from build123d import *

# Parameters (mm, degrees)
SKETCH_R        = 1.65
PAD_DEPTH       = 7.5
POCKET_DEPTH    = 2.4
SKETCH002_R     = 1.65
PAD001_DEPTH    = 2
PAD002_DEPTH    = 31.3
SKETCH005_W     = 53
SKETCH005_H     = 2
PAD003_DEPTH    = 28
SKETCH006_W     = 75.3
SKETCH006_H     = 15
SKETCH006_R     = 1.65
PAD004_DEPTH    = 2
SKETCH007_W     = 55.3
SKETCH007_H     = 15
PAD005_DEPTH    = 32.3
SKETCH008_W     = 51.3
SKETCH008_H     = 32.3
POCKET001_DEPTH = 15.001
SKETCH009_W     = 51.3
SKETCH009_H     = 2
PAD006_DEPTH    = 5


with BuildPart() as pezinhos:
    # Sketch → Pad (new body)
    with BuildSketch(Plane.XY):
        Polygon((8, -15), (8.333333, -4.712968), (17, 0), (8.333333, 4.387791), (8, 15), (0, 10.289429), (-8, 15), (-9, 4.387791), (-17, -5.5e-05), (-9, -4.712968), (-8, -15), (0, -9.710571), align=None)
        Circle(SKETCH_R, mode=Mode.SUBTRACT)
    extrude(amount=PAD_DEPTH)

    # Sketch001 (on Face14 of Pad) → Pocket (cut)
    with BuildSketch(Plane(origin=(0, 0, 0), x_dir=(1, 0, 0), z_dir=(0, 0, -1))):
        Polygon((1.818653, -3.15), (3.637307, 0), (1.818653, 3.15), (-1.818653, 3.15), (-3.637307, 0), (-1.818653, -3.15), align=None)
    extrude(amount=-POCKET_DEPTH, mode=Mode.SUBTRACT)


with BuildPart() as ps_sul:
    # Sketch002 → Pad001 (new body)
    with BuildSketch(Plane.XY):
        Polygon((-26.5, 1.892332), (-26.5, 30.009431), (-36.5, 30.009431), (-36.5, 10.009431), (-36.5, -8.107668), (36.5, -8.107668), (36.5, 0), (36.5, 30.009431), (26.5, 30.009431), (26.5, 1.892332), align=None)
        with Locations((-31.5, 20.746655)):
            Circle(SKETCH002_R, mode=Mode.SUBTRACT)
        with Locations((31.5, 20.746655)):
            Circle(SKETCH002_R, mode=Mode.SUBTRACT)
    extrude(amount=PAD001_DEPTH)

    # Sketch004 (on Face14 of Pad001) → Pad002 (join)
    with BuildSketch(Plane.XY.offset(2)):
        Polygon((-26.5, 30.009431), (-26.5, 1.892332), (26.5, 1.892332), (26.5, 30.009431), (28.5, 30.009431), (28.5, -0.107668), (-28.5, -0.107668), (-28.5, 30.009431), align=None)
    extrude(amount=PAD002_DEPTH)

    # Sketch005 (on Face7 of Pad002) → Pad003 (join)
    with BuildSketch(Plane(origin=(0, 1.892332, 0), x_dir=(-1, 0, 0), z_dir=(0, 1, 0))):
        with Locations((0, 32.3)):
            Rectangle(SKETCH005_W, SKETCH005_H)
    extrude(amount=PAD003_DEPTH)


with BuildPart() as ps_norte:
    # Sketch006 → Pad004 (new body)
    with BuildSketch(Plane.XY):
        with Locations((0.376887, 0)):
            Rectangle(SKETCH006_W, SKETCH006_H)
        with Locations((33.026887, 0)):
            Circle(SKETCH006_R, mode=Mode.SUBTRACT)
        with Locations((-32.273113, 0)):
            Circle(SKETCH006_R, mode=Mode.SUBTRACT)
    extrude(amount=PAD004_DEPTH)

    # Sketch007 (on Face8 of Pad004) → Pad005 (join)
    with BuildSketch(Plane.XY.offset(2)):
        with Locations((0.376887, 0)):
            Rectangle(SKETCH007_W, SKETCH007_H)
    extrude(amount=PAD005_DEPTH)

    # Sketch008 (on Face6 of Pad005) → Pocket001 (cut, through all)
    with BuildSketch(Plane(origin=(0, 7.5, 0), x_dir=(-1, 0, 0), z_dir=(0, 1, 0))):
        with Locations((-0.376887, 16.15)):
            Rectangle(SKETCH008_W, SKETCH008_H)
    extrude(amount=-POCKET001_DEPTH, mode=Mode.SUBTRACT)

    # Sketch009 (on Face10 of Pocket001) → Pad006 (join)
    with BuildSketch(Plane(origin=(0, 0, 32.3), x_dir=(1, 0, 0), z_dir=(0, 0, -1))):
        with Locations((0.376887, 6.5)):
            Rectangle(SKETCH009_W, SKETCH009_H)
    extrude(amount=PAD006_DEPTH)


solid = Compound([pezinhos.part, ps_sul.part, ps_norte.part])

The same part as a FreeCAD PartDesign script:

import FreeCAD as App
import Part
import Sketcher
from FreeCAD import Vector
Q = App.Units.Quantity

doc = App.newDocument("Part")
body = doc.addObject("PartDesign::Body", "Body")

sketch1 = body.newObject("Sketcher::SketchObject", "Sketch")
sketch1.AttachmentSupport = (doc.getObject("XY_Plane"), [""])
sketch1.MapMode = "FlatFace"
sketch1.addGeometry(Part.LineSegment(Vector(8, -15, 0), Vector(8.3, -4.7, 0)), False)
sketch1.addGeometry(Part.LineSegment(Vector(8.3, -4.7, 0), Vector(17, 0, 0)), False)
sketch1.addGeometry(Part.LineSegment(Vector(17, 0, 0), Vector(8.3, 4.4, 0)), False)
sketch1.addGeometry(Part.LineSegment(Vector(8.3, 4.4, 0), Vector(8, 15, 0)), False)
sketch1.addGeometry(Part.LineSegment(Vector(8, 15, 0), Vector(0, 10.3, 0)), False)
sketch1.addGeometry(Part.LineSegment(Vector(0, 10.3, 0), Vector(-8, 15, 0)), False)
sketch1.addGeometry(Part.LineSegment(Vector(-8, 15, 0), Vector(-9, 4.4, 0)), False)
sketch1.addGeometry(Part.LineSegment(Vector(-9, 4.4, 0), Vector(-17, 0, 0)), False)
sketch1.addGeometry(Part.LineSegment(Vector(-17, 0, 0), Vector(-9, -4.7, 0)), False)
sketch1.addGeometry(Part.LineSegment(Vector(-9, -4.7, 0), Vector(-8, -15, 0)), False)
sketch1.addGeometry(Part.LineSegment(Vector(-8, -15, 0), Vector(0, -9.7, 0)), False)
sketch1.addGeometry(Part.LineSegment(Vector(0, -9.7, 0), Vector(8, -15, 0)), False)
sketch1.addGeometry(Part.Circle(Vector(0, 0, 0), Vector(0, 0, 1), 1.6), False)
sketch1.addConstraint(Sketcher.Constraint("Coincident", 0, 2, 1, 1))
sketch1.addConstraint(Sketcher.Constraint("Coincident", 1, 2, 2, 1))
sketch1.addConstraint(Sketcher.Constraint("Coincident", 2, 2, 3, 1))
sketch1.addConstraint(Sketcher.Constraint("Coincident", 3, 2, 4, 1))
sketch1.addConstraint(Sketcher.Constraint("Coincident", 4, 2, 5, 1))
sketch1.addConstraint(Sketcher.Constraint("Coincident", 5, 2, 6, 1))
sketch1.addConstraint(Sketcher.Constraint("Coincident", 6, 2, 7, 1))
sketch1.addConstraint(Sketcher.Constraint("Coincident", 7, 2, 8, 1))
sketch1.addConstraint(Sketcher.Constraint("Coincident", 8, 2, 9, 1))
sketch1.addConstraint(Sketcher.Constraint("Coincident", 9, 2, 10, 1))
sketch1.addConstraint(Sketcher.Constraint("Coincident", 10, 2, 11, 1))
sketch1.addConstraint(Sketcher.Constraint("Coincident", 11, 2, 0, 1))
sketch1.addConstraint(Sketcher.Constraint("Coincident", 12, 3, -1, 1))
sketch1.addConstraint(Sketcher.Constraint("Symmetric", 3, 2, 9, 2, -1, 1))
sketch1.addConstraint(Sketcher.Constraint("Symmetric", 5, 2, 11, 2, -1, 1))
sketch1.addConstraint(Sketcher.Constraint("Symmetric", 3, 2, 5, 2, -2))
sketch1.addConstraint(Sketcher.Constraint("PointOnObject", 1, 2, -1))
sketch1.addConstraint(Sketcher.Constraint("PointOnObject", 4, 2, -2))
sketch1.addConstraint(Sketcher.Constraint("PointOnObject", 10, 2, -2))
sketch1.addConstraint(Sketcher.Constraint("Horizontal", 2, 2, 6, 2))
sketch1.addConstraint(Sketcher.Constraint("Horizontal", 0, 2, 8, 2))
sketch1.addConstraint(Sketcher.Constraint("Vertical", 0, 2, 2, 2))
sketch1.addConstraint(Sketcher.Constraint("Vertical", 6, 2, 8, 2))
sketch1.addConstraint(Sketcher.Constraint("Diameter", 12, Q("3.3 mm")))
sketch1.addConstraint(Sketcher.Constraint("DistanceX", -1, 1, 1, 2, Q("17 mm")))
sketch1.addConstraint(Sketcher.Constraint("DistanceX", -1, 1, 3, 2, Q("8 mm")))
sketch1.addConstraint(Sketcher.Constraint("DistanceY", -1, 1, 3, 2, Q("15 mm")))
sketch1.addConstraint(Sketcher.Constraint("DistanceX", 6, 2, -1, 1, Q("9 mm")))
sketch1.addConstraint(Sketcher.Constraint("DistanceX", 7, 2, -1, 1, Q("17 mm")))
sketch1.addConstraint(Sketcher.Constraint("Distance", 0, Q("10.292431 mm")))
sketch1.addConstraint(Sketcher.Constraint("Distance", 1, Q("9.865251 mm")))
sketch1.addConstraint(Sketcher.Constraint("Distance", 4, Q("9.283829 mm")))
sketch1.addConstraint(Sketcher.Constraint("Distance", 6, Q("10.65922 mm")))
sketch1.addConstraint(Sketcher.Constraint("Distance", 7, Q("9.124319 mm")))
sketch1.addConstraint(Sketcher.Constraint("Distance", 10, Q("9.590519 mm")))
pad1 = body.newObject("PartDesign::Pad", "Pad")
pad1.Profile = sketch1
pad1.Length = 7.5

sketch2 = body.newObject("Sketcher::SketchObject", "Sketch001")
sketch2.AttachmentSupport = (doc.getObject("XY_Plane"), [""])
sketch2.MapMode = "FlatFace"
sketch2.addGeometry(Part.LineSegment(Vector(1.8, 3.1, 0), Vector(3.6, 0, 0)), False)
sketch2.addGeometry(Part.LineSegment(Vector(3.6, 0, 0), Vector(1.8, -3.1, 0)), False)
sketch2.addGeometry(Part.LineSegment(Vector(1.8, -3.1, 0), Vector(-1.8, -3.1, 0)), False)
sketch2.addGeometry(Part.LineSegment(Vector(-1.8, -3.1, 0), Vector(-3.6, 0, 0)), False)
sketch2.addGeometry(Part.LineSegment(Vector(-3.6, 0, 0), Vector(-1.8, 3.1, 0)), False)
sketch2.addGeometry(Part.LineSegment(Vector(-1.8, 3.1, 0), Vector(1.8, 3.1, 0)), False)
sketch2.addConstraint(Sketcher.Constraint("Coincident", 0, 2, 1, 1))
sketch2.addConstraint(Sketcher.Constraint("Coincident", 1, 2, 2, 1))
sketch2.addConstraint(Sketcher.Constraint("Coincident", 2, 2, 3, 1))
sketch2.addConstraint(Sketcher.Constraint("Coincident", 3, 2, 4, 1))
sketch2.addConstraint(Sketcher.Constraint("Coincident", 4, 2, 5, 1))
sketch2.addConstraint(Sketcher.Constraint("Coincident", 5, 2, 0, 1))
sketch2.addConstraint(Sketcher.Constraint("Horizontal", 2))
sketch2.addConstraint(Sketcher.Constraint("Horizontal", 5))
sketch2.addConstraint(Sketcher.Constraint("Symmetric", 0, 2, 3, 2, -1, 1))
sketch2.addConstraint(Sketcher.Constraint("Symmetric", 1, 2, 4, 2, -1, 1))
sketch2.addConstraint(Sketcher.Constraint("PointOnObject", 0, 2, -1))
sketch2.addConstraint(Sketcher.Constraint("Parallel", 0, 3))
sketch2.addConstraint(Sketcher.Constraint("Vertical", 2, 2, 4, 2))
sketch2.addConstraint(Sketcher.Constraint("Angle", 0, Q("-59.999991 deg")))
sketch2.addConstraint(Sketcher.Constraint("DistanceY", 2, 2, 4, 2, Q("6.3 mm")))
sketch2.addConstraint(Sketcher.Constraint("DistanceX", 2, 2, 2, 1, Q("3.637306 mm")))
pocket1 = body.newObject("PartDesign::Pocket", "Pocket")
pocket1.Profile = sketch2
pocket1.Length = 2.4
pocket1.Reversed = True
body2 = doc.addObject("PartDesign::Body", "Body001")

sketch3 = body2.newObject("Sketcher::SketchObject", "Sketch002")
sketch3.AttachmentSupport = (doc.getObject("XY_Plane001"), [""])
sketch3.MapMode = "FlatFace"
sketch3.addGeometry(Part.LineSegment(Vector(-26.5, 1.9, 0), Vector(-26.5, 30, 0)), False)
sketch3.addGeometry(Part.LineSegment(Vector(-26.5, 30, 0), Vector(-36.5, 30, 0)), False)
sketch3.addGeometry(Part.LineSegment(Vector(-36.5, 30, 0), Vector(-36.5, -8.1, 0)), False)
sketch3.addGeometry(Part.LineSegment(Vector(-36.5, -8.1, 0), Vector(36.5, -8.1, 0)), False)
sketch3.addGeometry(Part.LineSegment(Vector(36.5, -8.1, 0), Vector(36.5, 30, 0)), False)
sketch3.addGeometry(Part.LineSegment(Vector(36.5, 30, 0), Vector(26.5, 30, 0)), False)
sketch3.addGeometry(Part.LineSegment(Vector(26.5, 30, 0), Vector(26.5, 1.9, 0)), False)
sketch3.addGeometry(Part.LineSegment(Vector(26.5, 1.9, 0), Vector(-26.5, 1.9, 0)), False)
sketch3.addGeometry(Part.Circle(Vector(-31.5, 20.7, 0), Vector(0, 0, 1), 1.6), False)
sketch3.addGeometry(Part.Circle(Vector(31.5, 20.7, 0), Vector(0, 0, 1), 1.6), False)
sketch3.addConstraint(Sketcher.Constraint("Coincident", 0, 2, 1, 1))
sketch3.addConstraint(Sketcher.Constraint("Coincident", 1, 2, 2, 1))
sketch3.addConstraint(Sketcher.Constraint("Coincident", 2, 2, 3, 1))
sketch3.addConstraint(Sketcher.Constraint("Coincident", 3, 2, 4, 1))
sketch3.addConstraint(Sketcher.Constraint("Coincident", 4, 2, 5, 1))
sketch3.addConstraint(Sketcher.Constraint("Coincident", 5, 2, 6, 1))
sketch3.addConstraint(Sketcher.Constraint("Coincident", 6, 2, 7, 1))
sketch3.addConstraint(Sketcher.Constraint("Coincident", 7, 2, 0, 1))
sketch3.addConstraint(Sketcher.Constraint("Vertical", 0))
sketch3.addConstraint(Sketcher.Constraint("Horizontal", 1))
sketch3.addConstraint(Sketcher.Constraint("Vertical", 2))
sketch3.addConstraint(Sketcher.Constraint("Horizontal", 3))
sketch3.addConstraint(Sketcher.Constraint("Vertical", 4))
sketch3.addConstraint(Sketcher.Constraint("Horizontal", 5))
sketch3.addConstraint(Sketcher.Constraint("Vertical", 6))
sketch3.addConstraint(Sketcher.Constraint("Horizontal", 7))
sketch3.addConstraint(Sketcher.Constraint("Equal", 8, 9))
sketch3.addConstraint(Sketcher.Constraint("Symmetric", 8, 3, 9, 3, -2))
sketch3.addConstraint(Sketcher.Constraint("Symmetric", 1, 2, 4, 2, -2))
sketch3.addConstraint(Sketcher.Constraint("Equal", 1, 5))
sketch3.addConstraint(Sketcher.Constraint("Diameter", 8, Q("3.3 mm")))
sketch3.addConstraint(Sketcher.Constraint("DistanceX", 1, 2, 1, 1, Q("10 mm")))
sketch3.addConstraint(Sketcher.Constraint("DistanceX", 3, 1, 3, 2, Q("73 mm")))
sketch3.addConstraint(Sketcher.Constraint("DistanceX", 8, 3, 9, 3, Q("63 mm")))
sketch3.addConstraint(Sketcher.Constraint("DistanceY", 3, 2, 6, 2, Q("10 mm")))
sketch3.addConstraint(Sketcher.Constraint("DistanceY", 0, 1, 0, 2, Q("28.117099 mm")))
sketch3.addConstraint(Sketcher.Constraint("DistanceY", -1, 1, 0, 2, Q("30.009431 mm")))
sketch3.addConstraint(Sketcher.Constraint("DistanceY", -1, 1, 8, 3, Q("20.746655 mm")))
pad2 = body2.newObject("PartDesign::Pad", "Pad001")
pad2.Profile = sketch3
pad2.Length = 2

sketch4 = body2.newObject("Sketcher::SketchObject", "Sketch003")
sketch4.AttachmentSupport = (doc.getObject("XY_Plane001"), [""])
sketch4.MapMode = "FlatFace"
sketch4.AttachmentOffset = App.Placement(Vector(0, 0, 2), App.Rotation())
sketch4.addGeometry(Part.LineSegment(Vector(-26.5, 1.9, 0), Vector(-26.5, 30, 0)), False)
sketch4.addGeometry(Part.LineSegment(Vector(-26.5, 30, 0), Vector(-28.5, 30, 0)), False)
sketch4.addGeometry(Part.LineSegment(Vector(-28.5, 30, 0), Vector(-28.5, -0.1, 0)), False)
sketch4.addGeometry(Part.LineSegment(Vector(-28.5, -0.1, 0), Vector(28.5, -0.1, 0)), False)
sketch4.addGeometry(Part.LineSegment(Vector(28.5, -0.1, 0), Vector(28.5, 30, 0)), False)
sketch4.addGeometry(Part.LineSegment(Vector(28.5, 30, 0), Vector(26.5, 30, 0)), False)
sketch4.addGeometry(Part.LineSegment(Vector(26.5, 30, 0), Vector(26.5, 1.9, 0)), False)
sketch4.addGeometry(Part.LineSegment(Vector(26.5, 1.9, 0), Vector(-26.5, 1.9, 0)), False)
sketch4.addConstraint(Sketcher.Constraint("Coincident", 0, 2, 1, 1))
sketch4.addConstraint(Sketcher.Constraint("Coincident", 1, 2, 2, 1))
sketch4.addConstraint(Sketcher.Constraint("Coincident", 2, 2, 3, 1))
sketch4.addConstraint(Sketcher.Constraint("Coincident", 3, 2, 4, 1))
sketch4.addConstraint(Sketcher.Constraint("Coincident", 4, 2, 5, 1))
sketch4.addConstraint(Sketcher.Constraint("Coincident", 5, 2, 6, 1))
sketch4.addConstraint(Sketcher.Constraint("Coincident", 6, 2, 7, 1))
sketch4.addConstraint(Sketcher.Constraint("Coincident", 7, 2, 0, 1))
sketch4.addConstraint(Sketcher.Constraint("Vertical", 0))
sketch4.addConstraint(Sketcher.Constraint("Horizontal", 1))
sketch4.addConstraint(Sketcher.Constraint("Vertical", 2))
sketch4.addConstraint(Sketcher.Constraint("Horizontal", 3))
sketch4.addConstraint(Sketcher.Constraint("Vertical", 4))
sketch4.addConstraint(Sketcher.Constraint("Horizontal", 5))
sketch4.addConstraint(Sketcher.Constraint("Vertical", 6))
sketch4.addConstraint(Sketcher.Constraint("Horizontal", 7))
sketch4.addConstraint(Sketcher.Constraint("Symmetric", 1, 2, 4, 2, -2))
sketch4.addConstraint(Sketcher.Constraint("Equal", 1, 5))
sketch4.addConstraint(Sketcher.Constraint("DistanceX", 1, 2, 1, 1, Q("2 mm")))
sketch4.addConstraint(Sketcher.Constraint("DistanceX", 3, 1, 3, 2, Q("57 mm")))
sketch4.addConstraint(Sketcher.Constraint("DistanceY", 3, 2, 6, 2, Q("2 mm")))
sketch4.addConstraint(Sketcher.Constraint("DistanceY", 0, 1, 0, 2, Q("28.117099 mm")))
sketch4.addConstraint(Sketcher.Constraint("DistanceY", -1, 1, 0, 2, Q("30.009431 mm")))
pad3 = body2.newObject("PartDesign::Pad", "Pad002")
pad3.Profile = sketch4
pad3.Length = 31.3

sketch5 = body2.newObject("Sketcher::SketchObject", "Sketch004")
sketch5.AttachmentSupport = (doc.getObject("XZ_Plane001"), [""])
sketch5.MapMode = "FlatFace"
sketch5.AttachmentOffset = App.Placement(Vector(0, 0, -1.892332), App.Rotation())
sketch5.addGeometry(Part.LineSegment(Vector(26.5, 33.3, 0), Vector(26.5, 31.3, 0)), False)
sketch5.addGeometry(Part.LineSegment(Vector(26.5, 31.3, 0), Vector(-26.5, 31.3, 0)), False)
sketch5.addGeometry(Part.LineSegment(Vector(-26.5, 31.3, 0), Vector(-26.5, 33.3, 0)), False)
sketch5.addGeometry(Part.LineSegment(Vector(-26.5, 33.3, 0), Vector(26.5, 33.3, 0)), False)
sketch5.addConstraint(Sketcher.Constraint("Coincident", 0, 2, 1, 1))
sketch5.addConstraint(Sketcher.Constraint("Coincident", 1, 2, 2, 1))
sketch5.addConstraint(Sketcher.Constraint("Coincident", 2, 2, 3, 1))
sketch5.addConstraint(Sketcher.Constraint("Coincident", 3, 2, 0, 1))
sketch5.addConstraint(Sketcher.Constraint("Vertical", 0))
sketch5.addConstraint(Sketcher.Constraint("Horizontal", 1))
sketch5.addConstraint(Sketcher.Constraint("Vertical", 2))
sketch5.addConstraint(Sketcher.Constraint("Horizontal", 3))
sketch5.addConstraint(Sketcher.Constraint("DistanceX", 1, 2, 1, 1, Q("53 mm")))
sketch5.addConstraint(Sketcher.Constraint("DistanceY", 0, 2, 0, 1, Q("2 mm")))
sketch5.addConstraint(Sketcher.Constraint("DistanceX", -1, 1, 0, 2, Q("26.5 mm")))
sketch5.addConstraint(Sketcher.Constraint("DistanceY", -1, 1, 0, 2, Q("31.3 mm")))
pad4 = body2.newObject("PartDesign::Pad", "Pad003")
pad4.Profile = sketch5
pad4.Length = 28
pad4.Reversed = True
body3 = doc.addObject("PartDesign::Body", "Body002")

sketch6 = body3.newObject("Sketcher::SketchObject", "Sketch005")
sketch6.AttachmentSupport = (doc.getObject("XY_Plane002"), [""])
sketch6.MapMode = "FlatFace"
sketch6.addGeometry(Part.LineSegment(Vector(-37.3, 7.5, 0), Vector(-37.3, -7.5, 0)), False)
sketch6.addGeometry(Part.LineSegment(Vector(-37.3, -7.5, 0), Vector(38, -7.5, 0)), False)
sketch6.addGeometry(Part.LineSegment(Vector(38, -7.5, 0), Vector(38, 7.5, 0)), False)
sketch6.addGeometry(Part.LineSegment(Vector(38, 7.5, 0), Vector(-37.3, 7.5, 0)), False)
sketch6.addGeometry(Part.Circle(Vector(-32.3, 0, 0), Vector(0, 0, 1), 1.6), False)
sketch6.addGeometry(Part.Circle(Vector(33, 0, 0), Vector(0, 0, 1), 1.6), False)
sketch6.addConstraint(Sketcher.Constraint("Coincident", 0, 2, 1, 1))
sketch6.addConstraint(Sketcher.Constraint("Coincident", 1, 2, 2, 1))
sketch6.addConstraint(Sketcher.Constraint("Coincident", 2, 2, 3, 1))
sketch6.addConstraint(Sketcher.Constraint("Coincident", 3, 2, 0, 1))
sketch6.addConstraint(Sketcher.Constraint("Vertical", 0))
sketch6.addConstraint(Sketcher.Constraint("Horizontal", 1))
sketch6.addConstraint(Sketcher.Constraint("Vertical", 2))
sketch6.addConstraint(Sketcher.Constraint("Horizontal", 3))
sketch6.addConstraint(Sketcher.Constraint("Equal", 4, 5))
sketch6.addConstraint(Sketcher.Constraint("PointOnObject", 4, 3, -1))
sketch6.addConstraint(Sketcher.Constraint("PointOnObject", 5, 3, -1))
sketch6.addConstraint(Sketcher.Constraint("Diameter", 4, Q("3.3 mm")))
sketch6.addConstraint(Sketcher.Constraint("DistanceY", 0, 2, 0, 1, Q("15 mm")))
sketch6.addConstraint(Sketcher.Constraint("DistanceX", 1, 1, 1, 2, Q("75.3 mm")))
sketch6.addConstraint(Sketcher.Constraint("DistanceX", 0, 2, 4, 3, Q("5 mm")))
sketch6.addConstraint(Sketcher.Constraint("DistanceX", 5, 3, 1, 2, Q("5 mm")))
sketch6.addConstraint(Sketcher.Constraint("DistanceY", 0, 2, -1, 1, Q("7.5 mm")))
sketch6.addConstraint(Sketcher.Constraint("DistanceX", 4, 3, -1, 1, Q("32.273113 mm")))
pad5 = body3.newObject("PartDesign::Pad", "Pad004")
pad5.Profile = sketch6
pad5.Length = 2

sketch7 = body3.newObject("Sketcher::SketchObject", "Sketch006")
sketch7.AttachmentSupport = (doc.getObject("XY_Plane002"), [""])
sketch7.MapMode = "FlatFace"
sketch7.AttachmentOffset = App.Placement(Vector(0, 0, 2), App.Rotation())
sketch7.addGeometry(Part.LineSegment(Vector(-27, 8, 0), Vector(-27, -8, 0)), False)
sketch7.addGeometry(Part.LineSegment(Vector(-27, -8, 0), Vector(28, -8, 0)), False)
sketch7.addGeometry(Part.LineSegment(Vector(28, -8, 0), Vector(28, 8, 0)), False)
sketch7.addGeometry(Part.LineSegment(Vector(28, 8, 0), Vector(-27, 8, 0)), False)
sketch7.addConstraint(Sketcher.Constraint("Coincident", 0, 2, 1, 1))
sketch7.addConstraint(Sketcher.Constraint("Coincident", 1, 2, 2, 1))
sketch7.addConstraint(Sketcher.Constraint("Coincident", 2, 2, 3, 1))
sketch7.addConstraint(Sketcher.Constraint("Coincident", 3, 2, 0, 1))
sketch7.addConstraint(Sketcher.Constraint("Vertical", 0))
sketch7.addConstraint(Sketcher.Constraint("Horizontal", 1))
sketch7.addConstraint(Sketcher.Constraint("Vertical", 2))
sketch7.addConstraint(Sketcher.Constraint("Horizontal", 3))
sketch7.addConstraint(Sketcher.Constraint("DistanceY", 0, 2, 0, 1, Q("15 mm")))
sketch7.addConstraint(Sketcher.Constraint("DistanceX", 1, 1, 1, 2, Q("55.3 mm")))
sketch7.addConstraint(Sketcher.Constraint("DistanceY", 0, 2, -1, 1, Q("7.5 mm")))
sketch7.addConstraint(Sketcher.Constraint("DistanceX", 0, 2, -1, 1, Q("27.273113 mm")))
pad6 = body3.newObject("PartDesign::Pad", "Pad005")
pad6.Profile = sketch7
pad6.Length = 32.3

sketch8 = body3.newObject("Sketcher::SketchObject", "Sketch007")
sketch8.AttachmentSupport = (doc.getObject("XZ_Plane002"), [""])
sketch8.MapMode = "FlatFace"
sketch8.AttachmentOffset = App.Placement(Vector(0, 0, -7.5), App.Rotation())
sketch8.addGeometry(Part.LineSegment(Vector(26, 32, 0), Vector(26, 0, 0)), False)
sketch8.addGeometry(Part.LineSegment(Vector(26, 0, 0), Vector(-25, 0, 0)), False)
sketch8.addGeometry(Part.LineSegment(Vector(-25, 0, 0), Vector(-25, 32, 0)), False)
sketch8.addGeometry(Part.LineSegment(Vector(-25, 32, 0), Vector(26, 32, 0)), False)
sketch8.addConstraint(Sketcher.Constraint("Coincident", 0, 2, 1, 1))
sketch8.addConstraint(Sketcher.Constraint("Coincident", 1, 2, 2, 1))
sketch8.addConstraint(Sketcher.Constraint("Coincident", 2, 2, 3, 1))
sketch8.addConstraint(Sketcher.Constraint("Coincident", 3, 2, 0, 1))
sketch8.addConstraint(Sketcher.Constraint("Vertical", 0))
sketch8.addConstraint(Sketcher.Constraint("Horizontal", 1))
sketch8.addConstraint(Sketcher.Constraint("Vertical", 2))
sketch8.addConstraint(Sketcher.Constraint("Horizontal", 3))
sketch8.addConstraint(Sketcher.Constraint("PointOnObject", 0, 2, -1))
sketch8.addConstraint(Sketcher.Constraint("DistanceX", 1, 2, 1, 1, Q("51.3 mm")))
sketch8.addConstraint(Sketcher.Constraint("DistanceY", 0, 2, 0, 1, Q("32.3 mm")))
sketch8.addConstraint(Sketcher.Constraint("DistanceX", -1, 1, 0, 2, Q("26.026887 mm")))
pocket2 = body3.newObject("PartDesign::Pocket", "Pocket001")
pocket2.Profile = sketch8
pocket2.Type = "ThroughAll"
pocket2.Reversed = True

sketch9 = body3.newObject("Sketcher::SketchObject", "Sketch008")
sketch9.AttachmentSupport = (doc.getObject("XY_Plane002"), [""])
sketch9.MapMode = "FlatFace"
sketch9.AttachmentOffset = App.Placement(Vector(0, 0, 32.3), App.Rotation())
sketch9.addGeometry(Part.LineSegment(Vector(-25.3, -7.5, 0), Vector(-25.3, -5.5, 0)), False)
sketch9.addGeometry(Part.LineSegment(Vector(-25.3, -5.5, 0), Vector(26, -5.5, 0)), False)
sketch9.addGeometry(Part.LineSegment(Vector(26, -5.5, 0), Vector(26, -7.5, 0)), False)
sketch9.addGeometry(Part.LineSegment(Vector(26, -7.5, 0), Vector(-25.3, -7.5, 0)), False)
sketch9.addConstraint(Sketcher.Constraint("Coincident", 0, 2, 1, 1))
sketch9.addConstraint(Sketcher.Constraint("Coincident", 1, 2, 2, 1))
sketch9.addConstraint(Sketcher.Constraint("Coincident", 2, 2, 3, 1))
sketch9.addConstraint(Sketcher.Constraint("Coincident", 3, 2, 0, 1))
sketch9.addConstraint(Sketcher.Constraint("Vertical", 0))
sketch9.addConstraint(Sketcher.Constraint("Horizontal", 1))
sketch9.addConstraint(Sketcher.Constraint("Vertical", 2))
sketch9.addConstraint(Sketcher.Constraint("Horizontal", 3))
sketch9.addConstraint(Sketcher.Constraint("DistanceY", 0, 1, 0, 2, Q("2 mm")))
sketch9.addConstraint(Sketcher.Constraint("DistanceX", 1, 1, 1, 2, Q("51.3 mm")))
sketch9.addConstraint(Sketcher.Constraint("DistanceY", 0, 2, -1, 1, Q("5.5 mm")))
sketch9.addConstraint(Sketcher.Constraint("DistanceX", 0, 2, -1, 1, Q("25.273113 mm")))
pad7 = body3.newObject("PartDesign::Pad", "Pad006")
pad7.Profile = sketch9
pad7.Length = 5
pad7.Reversed = True

doc.recompute()
